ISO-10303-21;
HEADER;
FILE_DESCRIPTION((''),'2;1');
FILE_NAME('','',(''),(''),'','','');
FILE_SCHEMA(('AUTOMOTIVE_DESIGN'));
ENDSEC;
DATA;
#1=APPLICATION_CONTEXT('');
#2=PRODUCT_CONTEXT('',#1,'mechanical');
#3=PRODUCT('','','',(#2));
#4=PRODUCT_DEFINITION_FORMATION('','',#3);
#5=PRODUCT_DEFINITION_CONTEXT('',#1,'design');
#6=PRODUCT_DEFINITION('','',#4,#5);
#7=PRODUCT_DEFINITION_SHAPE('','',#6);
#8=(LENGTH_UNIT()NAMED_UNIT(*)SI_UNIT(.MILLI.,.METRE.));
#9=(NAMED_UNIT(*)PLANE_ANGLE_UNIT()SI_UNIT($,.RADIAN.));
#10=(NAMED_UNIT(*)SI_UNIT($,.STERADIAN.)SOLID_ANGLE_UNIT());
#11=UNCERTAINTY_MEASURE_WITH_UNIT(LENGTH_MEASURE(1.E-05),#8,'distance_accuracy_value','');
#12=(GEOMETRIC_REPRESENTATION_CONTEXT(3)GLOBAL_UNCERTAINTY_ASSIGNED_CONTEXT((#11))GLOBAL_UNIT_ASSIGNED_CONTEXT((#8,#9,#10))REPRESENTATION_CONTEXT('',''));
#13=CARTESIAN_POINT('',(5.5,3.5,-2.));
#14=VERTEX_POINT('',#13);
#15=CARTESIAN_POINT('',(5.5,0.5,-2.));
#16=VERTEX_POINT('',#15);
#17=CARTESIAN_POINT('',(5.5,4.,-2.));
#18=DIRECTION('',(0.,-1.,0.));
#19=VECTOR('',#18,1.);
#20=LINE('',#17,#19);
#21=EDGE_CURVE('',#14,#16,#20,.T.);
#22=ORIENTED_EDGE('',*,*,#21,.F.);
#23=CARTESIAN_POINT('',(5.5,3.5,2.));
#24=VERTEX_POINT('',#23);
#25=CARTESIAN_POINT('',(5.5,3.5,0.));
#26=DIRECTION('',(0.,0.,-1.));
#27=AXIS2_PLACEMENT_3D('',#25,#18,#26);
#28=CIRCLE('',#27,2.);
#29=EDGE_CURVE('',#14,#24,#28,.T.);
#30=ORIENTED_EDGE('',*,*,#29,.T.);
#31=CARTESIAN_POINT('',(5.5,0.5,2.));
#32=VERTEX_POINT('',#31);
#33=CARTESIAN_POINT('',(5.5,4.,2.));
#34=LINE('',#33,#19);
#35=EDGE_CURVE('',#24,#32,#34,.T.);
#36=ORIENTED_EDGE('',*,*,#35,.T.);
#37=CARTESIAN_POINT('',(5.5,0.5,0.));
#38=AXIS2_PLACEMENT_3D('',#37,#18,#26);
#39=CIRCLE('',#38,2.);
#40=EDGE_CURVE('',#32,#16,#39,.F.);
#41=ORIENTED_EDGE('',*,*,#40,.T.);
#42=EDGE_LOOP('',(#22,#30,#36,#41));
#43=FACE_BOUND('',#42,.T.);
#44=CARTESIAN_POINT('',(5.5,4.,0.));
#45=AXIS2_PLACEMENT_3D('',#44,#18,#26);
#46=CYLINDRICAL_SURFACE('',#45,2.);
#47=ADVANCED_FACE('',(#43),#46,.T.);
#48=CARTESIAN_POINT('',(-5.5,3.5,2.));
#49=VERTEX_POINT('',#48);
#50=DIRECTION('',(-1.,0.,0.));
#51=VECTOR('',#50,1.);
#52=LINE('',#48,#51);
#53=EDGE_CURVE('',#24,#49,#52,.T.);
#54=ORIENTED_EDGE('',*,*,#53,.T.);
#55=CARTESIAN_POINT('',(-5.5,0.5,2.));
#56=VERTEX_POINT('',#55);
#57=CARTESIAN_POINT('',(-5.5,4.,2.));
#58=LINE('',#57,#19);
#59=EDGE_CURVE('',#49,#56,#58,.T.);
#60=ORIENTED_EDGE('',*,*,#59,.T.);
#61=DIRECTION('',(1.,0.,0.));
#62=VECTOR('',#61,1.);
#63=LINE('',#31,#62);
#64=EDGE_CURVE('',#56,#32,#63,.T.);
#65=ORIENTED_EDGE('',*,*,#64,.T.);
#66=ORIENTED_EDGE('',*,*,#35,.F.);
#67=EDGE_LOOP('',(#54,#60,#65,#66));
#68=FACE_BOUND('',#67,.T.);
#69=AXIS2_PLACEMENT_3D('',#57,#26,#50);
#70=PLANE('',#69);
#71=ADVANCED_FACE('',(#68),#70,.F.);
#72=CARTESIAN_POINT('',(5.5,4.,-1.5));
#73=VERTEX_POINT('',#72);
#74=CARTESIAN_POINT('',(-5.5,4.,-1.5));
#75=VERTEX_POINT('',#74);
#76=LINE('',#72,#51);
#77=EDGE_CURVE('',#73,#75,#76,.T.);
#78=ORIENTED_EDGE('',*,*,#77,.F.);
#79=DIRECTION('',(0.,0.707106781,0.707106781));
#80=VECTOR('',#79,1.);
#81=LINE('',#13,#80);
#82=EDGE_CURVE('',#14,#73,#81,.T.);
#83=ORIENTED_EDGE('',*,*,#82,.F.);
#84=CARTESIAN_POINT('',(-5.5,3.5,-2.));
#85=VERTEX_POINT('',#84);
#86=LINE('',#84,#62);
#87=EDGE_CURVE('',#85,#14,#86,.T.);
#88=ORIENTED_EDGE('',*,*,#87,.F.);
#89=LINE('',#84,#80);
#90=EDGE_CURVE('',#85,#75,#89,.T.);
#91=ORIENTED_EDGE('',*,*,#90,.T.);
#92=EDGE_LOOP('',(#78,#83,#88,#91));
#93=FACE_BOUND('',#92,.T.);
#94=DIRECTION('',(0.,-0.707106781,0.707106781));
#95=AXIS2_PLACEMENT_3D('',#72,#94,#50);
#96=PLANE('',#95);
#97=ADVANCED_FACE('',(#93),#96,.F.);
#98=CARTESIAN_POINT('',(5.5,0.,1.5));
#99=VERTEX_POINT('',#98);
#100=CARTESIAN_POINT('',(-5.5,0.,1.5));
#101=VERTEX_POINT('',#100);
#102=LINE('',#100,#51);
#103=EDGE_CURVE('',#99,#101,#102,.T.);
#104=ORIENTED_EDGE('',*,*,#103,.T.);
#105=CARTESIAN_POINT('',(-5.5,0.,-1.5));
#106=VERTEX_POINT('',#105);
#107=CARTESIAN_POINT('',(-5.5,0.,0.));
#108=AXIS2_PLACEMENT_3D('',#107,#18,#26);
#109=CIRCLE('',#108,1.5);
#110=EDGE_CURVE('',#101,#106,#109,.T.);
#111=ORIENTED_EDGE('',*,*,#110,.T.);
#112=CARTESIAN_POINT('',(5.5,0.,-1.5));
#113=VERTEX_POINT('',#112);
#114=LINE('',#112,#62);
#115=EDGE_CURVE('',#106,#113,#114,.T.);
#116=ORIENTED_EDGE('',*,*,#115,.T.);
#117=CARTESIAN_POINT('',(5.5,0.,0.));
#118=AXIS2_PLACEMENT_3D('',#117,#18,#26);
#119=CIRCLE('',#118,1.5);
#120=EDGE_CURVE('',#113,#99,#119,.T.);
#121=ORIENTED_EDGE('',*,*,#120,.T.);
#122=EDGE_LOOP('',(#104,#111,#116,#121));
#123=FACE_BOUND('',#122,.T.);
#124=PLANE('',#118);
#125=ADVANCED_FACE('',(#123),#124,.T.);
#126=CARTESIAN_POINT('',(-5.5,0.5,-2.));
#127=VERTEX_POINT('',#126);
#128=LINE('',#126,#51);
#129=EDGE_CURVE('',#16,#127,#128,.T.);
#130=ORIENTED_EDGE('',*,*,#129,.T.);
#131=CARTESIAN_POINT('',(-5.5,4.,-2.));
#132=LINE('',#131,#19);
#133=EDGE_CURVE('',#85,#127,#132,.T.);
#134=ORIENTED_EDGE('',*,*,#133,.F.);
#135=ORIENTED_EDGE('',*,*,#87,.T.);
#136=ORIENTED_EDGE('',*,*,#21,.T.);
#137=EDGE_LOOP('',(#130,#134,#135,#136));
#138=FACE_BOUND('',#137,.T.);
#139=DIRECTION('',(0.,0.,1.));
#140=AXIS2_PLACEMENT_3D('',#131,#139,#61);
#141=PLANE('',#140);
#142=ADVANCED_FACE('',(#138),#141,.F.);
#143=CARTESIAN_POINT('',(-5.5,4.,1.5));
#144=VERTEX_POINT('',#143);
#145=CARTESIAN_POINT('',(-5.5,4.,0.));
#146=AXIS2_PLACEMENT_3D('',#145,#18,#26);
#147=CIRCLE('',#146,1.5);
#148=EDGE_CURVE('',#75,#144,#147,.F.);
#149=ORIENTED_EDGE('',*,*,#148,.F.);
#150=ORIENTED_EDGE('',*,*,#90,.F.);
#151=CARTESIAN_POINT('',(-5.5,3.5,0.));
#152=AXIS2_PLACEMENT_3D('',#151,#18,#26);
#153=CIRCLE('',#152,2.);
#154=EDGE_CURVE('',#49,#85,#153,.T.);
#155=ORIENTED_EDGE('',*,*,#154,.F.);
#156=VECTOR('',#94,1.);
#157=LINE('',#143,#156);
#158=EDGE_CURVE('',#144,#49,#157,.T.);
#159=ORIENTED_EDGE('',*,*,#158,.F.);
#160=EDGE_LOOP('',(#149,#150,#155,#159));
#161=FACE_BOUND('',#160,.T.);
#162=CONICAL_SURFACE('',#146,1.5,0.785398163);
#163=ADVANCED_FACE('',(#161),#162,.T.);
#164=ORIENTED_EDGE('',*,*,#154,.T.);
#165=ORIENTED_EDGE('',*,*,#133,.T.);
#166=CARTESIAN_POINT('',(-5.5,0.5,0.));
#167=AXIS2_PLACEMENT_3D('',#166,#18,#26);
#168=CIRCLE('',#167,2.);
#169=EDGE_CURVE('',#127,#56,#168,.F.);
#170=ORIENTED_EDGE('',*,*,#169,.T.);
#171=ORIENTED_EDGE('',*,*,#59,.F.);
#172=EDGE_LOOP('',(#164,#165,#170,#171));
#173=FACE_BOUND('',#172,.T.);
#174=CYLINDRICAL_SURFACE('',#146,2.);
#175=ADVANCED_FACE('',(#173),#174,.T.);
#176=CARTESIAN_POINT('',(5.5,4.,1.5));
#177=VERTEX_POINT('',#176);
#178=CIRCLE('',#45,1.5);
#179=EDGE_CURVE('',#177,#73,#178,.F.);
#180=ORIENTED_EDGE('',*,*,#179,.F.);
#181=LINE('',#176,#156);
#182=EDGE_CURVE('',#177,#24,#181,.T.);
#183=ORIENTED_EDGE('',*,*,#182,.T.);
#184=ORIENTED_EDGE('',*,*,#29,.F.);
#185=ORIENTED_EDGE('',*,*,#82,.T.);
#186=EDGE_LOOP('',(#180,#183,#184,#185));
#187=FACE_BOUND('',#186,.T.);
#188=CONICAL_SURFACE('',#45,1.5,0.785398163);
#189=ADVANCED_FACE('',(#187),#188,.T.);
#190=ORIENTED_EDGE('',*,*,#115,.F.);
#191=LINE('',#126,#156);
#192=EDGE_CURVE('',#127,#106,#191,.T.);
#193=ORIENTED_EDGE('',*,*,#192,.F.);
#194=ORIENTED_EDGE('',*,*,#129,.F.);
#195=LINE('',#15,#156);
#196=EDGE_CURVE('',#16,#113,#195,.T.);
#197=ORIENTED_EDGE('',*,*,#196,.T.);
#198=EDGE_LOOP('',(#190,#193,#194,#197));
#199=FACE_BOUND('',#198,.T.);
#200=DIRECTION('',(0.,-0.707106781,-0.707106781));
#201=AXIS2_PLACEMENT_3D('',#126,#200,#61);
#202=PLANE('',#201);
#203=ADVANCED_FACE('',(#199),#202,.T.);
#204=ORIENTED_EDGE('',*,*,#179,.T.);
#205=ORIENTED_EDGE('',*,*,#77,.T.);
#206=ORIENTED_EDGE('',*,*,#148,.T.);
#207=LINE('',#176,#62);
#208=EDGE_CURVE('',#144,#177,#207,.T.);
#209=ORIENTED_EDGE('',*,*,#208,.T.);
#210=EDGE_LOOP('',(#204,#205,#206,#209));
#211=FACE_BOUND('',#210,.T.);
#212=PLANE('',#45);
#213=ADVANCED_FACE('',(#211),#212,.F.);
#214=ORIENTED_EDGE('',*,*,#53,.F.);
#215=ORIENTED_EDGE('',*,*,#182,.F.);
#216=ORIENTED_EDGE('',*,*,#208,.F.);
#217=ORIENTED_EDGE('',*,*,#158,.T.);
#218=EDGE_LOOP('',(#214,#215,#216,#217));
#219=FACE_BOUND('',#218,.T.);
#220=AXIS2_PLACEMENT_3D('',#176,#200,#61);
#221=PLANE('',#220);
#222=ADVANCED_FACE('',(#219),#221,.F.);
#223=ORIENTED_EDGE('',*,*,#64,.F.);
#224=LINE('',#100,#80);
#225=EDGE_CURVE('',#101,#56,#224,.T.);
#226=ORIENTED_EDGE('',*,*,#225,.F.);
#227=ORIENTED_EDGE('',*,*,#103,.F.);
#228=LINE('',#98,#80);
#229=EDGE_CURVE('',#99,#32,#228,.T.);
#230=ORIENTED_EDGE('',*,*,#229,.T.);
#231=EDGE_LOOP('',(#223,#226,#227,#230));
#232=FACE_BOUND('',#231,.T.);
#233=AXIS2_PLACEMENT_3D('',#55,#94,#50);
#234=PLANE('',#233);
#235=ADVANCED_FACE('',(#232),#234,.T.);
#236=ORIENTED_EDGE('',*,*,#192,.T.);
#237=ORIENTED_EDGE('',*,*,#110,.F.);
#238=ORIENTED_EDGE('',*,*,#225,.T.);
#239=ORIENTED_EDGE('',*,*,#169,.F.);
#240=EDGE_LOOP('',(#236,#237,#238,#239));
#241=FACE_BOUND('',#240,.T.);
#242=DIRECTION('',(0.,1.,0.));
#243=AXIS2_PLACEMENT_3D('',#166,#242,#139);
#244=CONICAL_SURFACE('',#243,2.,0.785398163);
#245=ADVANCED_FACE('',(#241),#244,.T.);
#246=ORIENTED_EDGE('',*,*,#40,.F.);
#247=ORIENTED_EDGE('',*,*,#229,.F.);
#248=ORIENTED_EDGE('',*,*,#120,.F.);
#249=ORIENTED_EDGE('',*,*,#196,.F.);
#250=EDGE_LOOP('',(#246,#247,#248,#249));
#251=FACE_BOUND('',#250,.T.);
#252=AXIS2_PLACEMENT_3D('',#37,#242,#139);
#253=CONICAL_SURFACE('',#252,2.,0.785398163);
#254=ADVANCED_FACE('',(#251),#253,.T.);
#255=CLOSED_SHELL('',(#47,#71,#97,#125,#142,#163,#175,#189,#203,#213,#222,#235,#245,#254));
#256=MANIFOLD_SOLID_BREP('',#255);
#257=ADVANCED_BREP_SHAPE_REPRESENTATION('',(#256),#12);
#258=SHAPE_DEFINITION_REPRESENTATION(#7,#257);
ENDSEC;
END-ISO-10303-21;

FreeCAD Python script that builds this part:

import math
import FreeCAD as App
import Part
import Sketcher
from FreeCAD import Vector


def edges_at(feature, points):
    """Names of the edges that pass closest to the given points."""
    edges = feature.Shape.Edges
    near = lambda p: min(range(len(edges)), key=lambda i: edges[i].distToShape(Part.Vertex(*p))[0])
    return sorted({f"Edge{near(p) + 1}" for p in points})

doc = App.newDocument("Part")
body = doc.addObject("PartDesign::Body", "Body")

# Sketch on XZ plane
sketch1 = body.newObject("Sketcher::SketchObject", "Sketch")
sketch1.AttachmentSupport = (doc.getObject("XZ_Plane"), [""])
sketch1.MapMode = "FlatFace"
sketch1.addGeometry([
    Part.LineSegment(Vector(5.5, -2, 0), Vector(-5.5, -2, 0)),
    Part.ArcOfCircle(Part.Circle(Vector(-5.5, 0, 0), Vector(0, 0, 1), 2), math.radians(90), math.radians(270)),
    Part.LineSegment(Vector(-5.5, 2, 0), Vector(5.5, 2, 0)),
    Part.ArcOfCircle(Part.Circle(Vector(5.5, 0, 0), Vector(0, 0, 1), 2), math.radians(-90), math.radians(90)),
], False)
sketch1.addConstraint([
    Sketcher.Constraint("Tangent", 0, 2, 1, 2),
    Sketcher.Constraint("Tangent", 1, 1, 2, 1),
    Sketcher.Constraint("Tangent", 2, 2, 3, 2),
    Sketcher.Constraint("Tangent", 3, 1, 0, 1),
    Sketcher.Constraint("Horizontal", 0),
    Sketcher.Constraint("Horizontal", 2),
    Sketcher.Constraint("Symmetric", 1, 3, 3, 3, -1, 1),
    Sketcher.Constraint("Radius", 1, 2.0),
    Sketcher.Constraint("DistanceX", 0, 2, 0, 1, 11.0),
])
pad1 = body.newObject("PartDesign::Pad", "Pad")
pad1.Profile = sketch1
pad1.Length = 4
pad1.Reversed = True
doc.recompute()

chamfer = body.newObject("PartDesign::Chamfer", "Chamfer")
chamfer.Base = (pad1, edges_at(pad1, [
    (-7.5, 4, 0),
    (0, 4, 2),
    (7.5, 4, 0),
    (0, 0, 2),
    (-7.5, 0, 0),
    (0, 0, -2),
    (7.5, 0, 0),
    (0, 4, -2),
]))
chamfer.Size = 0.5

doc.recompute()
